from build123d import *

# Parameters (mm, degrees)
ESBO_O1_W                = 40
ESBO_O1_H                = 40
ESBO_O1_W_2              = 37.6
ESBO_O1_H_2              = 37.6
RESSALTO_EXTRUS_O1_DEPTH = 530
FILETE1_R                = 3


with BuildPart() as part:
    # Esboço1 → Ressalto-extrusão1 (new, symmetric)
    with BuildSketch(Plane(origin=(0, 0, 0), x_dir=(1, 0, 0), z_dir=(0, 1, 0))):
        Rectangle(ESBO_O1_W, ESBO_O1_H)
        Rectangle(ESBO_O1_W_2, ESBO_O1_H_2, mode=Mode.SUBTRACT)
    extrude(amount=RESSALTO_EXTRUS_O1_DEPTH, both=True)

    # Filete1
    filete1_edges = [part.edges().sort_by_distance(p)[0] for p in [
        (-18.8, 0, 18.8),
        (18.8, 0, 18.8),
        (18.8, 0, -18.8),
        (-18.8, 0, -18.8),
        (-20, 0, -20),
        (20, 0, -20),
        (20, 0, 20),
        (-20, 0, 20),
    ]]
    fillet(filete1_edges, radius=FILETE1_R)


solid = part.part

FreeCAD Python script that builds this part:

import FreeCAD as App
import Part
import Sketcher
Q = App.Units.Quantity


def edges_at(feature, points):
    """Names of the edges that pass closest to the given points."""
    edges = feature.Shape.Edges
    near = lambda p: min(range(len(edges)), key=lambda i: edges[i].distToShape(Part.Vertex(*p))[0])
    return sorted({f"Edge{near(p) + 1}" for p in points})


def add_polygon(sketch, points):
    """Adds a closed chain of lines whose ends are joined by coincident constraints."""
    first, n = sketch.GeometryCount, len(points)
    for a, b in zip(points, points[1:] + points[:1]):
        sketch.addGeometry(Part.LineSegment(App.Vector(*a, 0), App.Vector(*b, 0)), False)
    for i in range(n):
        sketch.addConstraint(Sketcher.Constraint("Coincident", first + i, 2, first + (i + 1) % n, 1))

doc = App.newDocument("Part")
body = doc.addObject("PartDesign::Body", "Body")

# Sketch on XZ plane
sketch1 = doc.addObject("Sketcher::SketchObject", "Sketch")
body.addObject(sketch1)
sketch1.AttachmentSupport = (doc.XZ_Plane, [""])
sketch1.MapMode = "FlatFace"
add_polygon(sketch1, [(-20, -20), (-20, 20), (20, 20), (20, -20)])  # lines 0-3
add_polygon(sketch1, [(19, 19), (-19, 19), (-19, -19), (19, -19)])  # lines 4-7
sketch1.addConstraint(Sketcher.Constraint("Vertical", 0))
sketch1.addConstraint(Sketcher.Constraint("Horizontal", 1))
sketch1.addConstraint(Sketcher.Constraint("Vertical", 2))
sketch1.addConstraint(Sketcher.Constraint("Horizontal", 3))
sketch1.addConstraint(Sketcher.Constraint("Horizontal", 4))
sketch1.addConstraint(Sketcher.Constraint("Vertical", 5))
sketch1.addConstraint(Sketcher.Constraint("Horizontal", 6))
sketch1.addConstraint(Sketcher.Constraint("Vertical", 7))
sketch1.addConstraint(Sketcher.Constraint("Symmetric", 0, 2, 2, 2, -1, 1))
sketch1.addConstraint(Sketcher.Constraint("Symmetric", 4, 2, 6, 2, -1, 1))
sketch1.addConstraint(Sketcher.Constraint("Equal", 3, 0))
sketch1.addConstraint(Sketcher.Constraint("Equal", 6, 5))
sketch1.addConstraint(Sketcher.Constraint("DistanceX", 1, 1, 1, 2, Q("40 mm")))
sketch1.addConstraint(Sketcher.Constraint("DistanceX", 4, 2, 4, 1, Q("37.6 mm")))
pad1 = doc.addObject("PartDesign::Pad", "Pad")
body.addObject(pad1)
pad1.Profile = sketch1
pad1.Length = 1060
pad1.Midplane = True
doc.recompute()

fillet = doc.addObject("PartDesign::Fillet", "Fillet")
body.addObject(fillet)
fillet.Base = (pad1, edges_at(pad1, [
    (-18.8, 0, 18.8),
    (18.8, 0, 18.8),
    (18.8, 0, -18.8),
    (-18.8, 0, -18.8),
    (-20, 0, -20),
    (20, 0, -20),
    (20, 0, 20),
    (-20, 0, 20),
]))
fillet.Radius = 3

doc.recompute()
